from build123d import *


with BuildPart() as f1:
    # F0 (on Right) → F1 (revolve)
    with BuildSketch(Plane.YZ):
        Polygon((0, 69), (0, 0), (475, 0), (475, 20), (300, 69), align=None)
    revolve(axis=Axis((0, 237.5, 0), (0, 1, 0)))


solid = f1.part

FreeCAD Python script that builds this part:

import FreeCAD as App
import Part
import Sketcher

V = App.Vector
Q = App.Units.Quantity

doc = App.newDocument("Part")
params = doc.addObject("Spreadsheet::Sheet", "Params")
for row, (alias, value) in enumerate([
    ("sketch1_width", "475 mm"),
    ("sketch1_width2", "300 mm"),
    ("sketch1_height", "69 mm"),
    ("sketch1_height2", "20 mm"),
    ("revolution_angle", "360 deg"),
], start=1):
    params.set(f"A{row}", alias)
    params.set(f"B{row}", "=" + value)
    params.setAlias(f"B{row}", alias)

body = doc.addObject("PartDesign::Body", "Body")

sketch1 = body.newObject("Sketcher::SketchObject", "Sketch")
sketch1.AttachmentSupport = (doc.getObject("YZ_Plane"), [""])
sketch1.MapMode = "FlatFace"
sketch1.addGeometry([
    Part.LineSegment(V(0, 69, 0), V(0, 0, 0)),
    Part.LineSegment(V(0, 0, 0), V(475, 0, 0)),
    Part.LineSegment(V(475, 0, 0), V(475, 20, 0)),
    Part.LineSegment(V(475, 20, 0), V(300, 69, 0)),
    Part.LineSegment(V(300, 69, 0), V(0, 69, 0)),
], False)
sketch1.addConstraint([
    Sketcher.Constraint("Coincident", 0, 2, 1, 1),
    Sketcher.Constraint("Coincident", 1, 2, 2, 1),
    Sketcher.Constraint("Coincident", 2, 2, 3, 1),
    Sketcher.Constraint("Coincident", 3, 2, 4, 1),
    Sketcher.Constraint("Coincident", 4, 2, 0, 1),
    Sketcher.Constraint("Vertical", 0),
    Sketcher.Constraint("Horizontal", 1),
    Sketcher.Constraint("Vertical", 2),
    Sketcher.Constraint("Horizontal", 4),
    Sketcher.Constraint("Coincident", 0, 2, -1, 1),
    Sketcher.Constraint("DistanceX", 1, 1, 1, 2, Q("475 mm")),
    Sketcher.Constraint("DistanceX", 4, 2, 4, 1, Q("300 mm")),
    Sketcher.Constraint("DistanceY", 0, 2, 0, 1, Q("69 mm")),
    Sketcher.Constraint("DistanceY", 2, 1, 2, 2, Q("20 mm")),
])
sketch1.setExpression("Constraints[10]", "Params.sketch1_width")
sketch1.setExpression("Constraints[11]", "Params.sketch1_width2")
sketch1.setExpression("Constraints[12]", "Params.sketch1_height")
sketch1.setExpression("Constraints[13]", "Params.sketch1_height2")
revolution = body.newObject("PartDesign::Revolution", "Revolution")
revolution.Profile = sketch1
revolution.ReferenceAxis = (sketch1, ["H_Axis"])
revolution.setExpression("Angle", "Params.revolution_angle")

doc.recompute()
